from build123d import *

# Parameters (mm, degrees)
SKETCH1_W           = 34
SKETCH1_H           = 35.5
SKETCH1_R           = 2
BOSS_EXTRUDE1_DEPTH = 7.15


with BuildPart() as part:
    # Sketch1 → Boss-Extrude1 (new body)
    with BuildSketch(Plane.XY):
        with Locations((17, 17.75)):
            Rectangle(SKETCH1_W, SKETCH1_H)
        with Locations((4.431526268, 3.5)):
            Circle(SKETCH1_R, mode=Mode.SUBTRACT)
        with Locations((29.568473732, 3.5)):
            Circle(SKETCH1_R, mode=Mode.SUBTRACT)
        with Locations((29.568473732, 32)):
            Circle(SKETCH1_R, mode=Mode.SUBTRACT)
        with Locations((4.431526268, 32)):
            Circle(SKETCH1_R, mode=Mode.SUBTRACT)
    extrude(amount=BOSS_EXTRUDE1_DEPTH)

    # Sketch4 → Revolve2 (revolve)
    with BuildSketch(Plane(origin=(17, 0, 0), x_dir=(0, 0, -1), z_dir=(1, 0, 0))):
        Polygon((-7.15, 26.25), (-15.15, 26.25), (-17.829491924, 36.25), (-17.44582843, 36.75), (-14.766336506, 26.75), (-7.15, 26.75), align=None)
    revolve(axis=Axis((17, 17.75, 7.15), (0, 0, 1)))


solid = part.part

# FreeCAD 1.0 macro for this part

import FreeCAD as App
import Part
import Sketcher
from FreeCAD import Vector
Q = App.Units.Quantity


def add_polygon(sketch, points):
    """Adds a closed chain of lines whose ends are joined by coincident constraints."""
    first, n = sketch.GeometryCount, len(points)
    for a, b in zip(points, points[1:] + points[:1]):
        sketch.addGeometry(Part.LineSegment(App.Vector(*a, 0), App.Vector(*b, 0)), False)
    for i in range(n):
        sketch.addConstraint(Sketcher.Constraint("Coincident", first + i, 2, first + (i + 1) % n, 1))

doc = App.newDocument("Part")
body = doc.addObject("PartDesign::Body", "Body")

# Sketch on XY plane
sketch1 = body.newObject("Sketcher::SketchObject", "Sketch")
sketch1.AttachmentSupport = (doc.getObject("XY_Plane"), [""])
sketch1.MapMode = "FlatFace"
add_polygon(sketch1, [(0, 35.5), (0, 0), (34, 0), (34, 35.5)])  # lines 0-3
sketch1.addGeometry(Part.Circle(Vector(4.4, 3.5, 0), Vector(0, 0, 1), 2), False)  # 4
sketch1.addGeometry(Part.Circle(Vector(29.6, 3.5, 0), Vector(0, 0, 1), 2), False)  # 5
sketch1.addGeometry(Part.Circle(Vector(4.4, 32, 0), Vector(0, 0, 1), 2), False)  # 6
sketch1.addGeometry(Part.Circle(Vector(29.6, 32, 0), Vector(0, 0, 1), 2), False)  # 7
sketch1.addConstraint(Sketcher.Constraint("Vertical", 0))
sketch1.addConstraint(Sketcher.Constraint("Horizontal", 1))
sketch1.addConstraint(Sketcher.Constraint("Vertical", 2))
sketch1.addConstraint(Sketcher.Constraint("Horizontal", 3))
sketch1.addConstraint(Sketcher.Constraint("Coincident", 0, 2, -1, 1))
sketch1.addConstraint(Sketcher.Constraint("Equal", 4, 5))
sketch1.addConstraint(Sketcher.Constraint("Equal", 5, 6))
sketch1.addConstraint(Sketcher.Constraint("Equal", 6, 7))
sketch1.addConstraint(Sketcher.Constraint("Horizontal", 4, 3, 5, 3))
sketch1.addConstraint(Sketcher.Constraint("Horizontal", 6, 3, 7, 3))
sketch1.addConstraint(Sketcher.Constraint("Vertical", 4, 3, 6, 3))
sketch1.addConstraint(Sketcher.Constraint("Vertical", 5, 3, 7, 3))
sketch1.addConstraint(Sketcher.Constraint("Diameter", 4, Q("4 mm")))
sketch1.addConstraint(Sketcher.Constraint("DistanceX", 1, 1, 1, 2, Q("34 mm")))
sketch1.addConstraint(Sketcher.Constraint("DistanceY", 0, 2, 0, 1, Q("35.5 mm")))
sketch1.addConstraint(Sketcher.Constraint("DistanceY", -1, 1, 6, 3, Q("32 mm")))
sketch1.addConstraint(Sketcher.Constraint("DistanceY", 5, 3, 2, 2, Q("32 mm")))
sketch1.addConstraint(Sketcher.Constraint("DistanceX", -1, 1, 4, 3, Q("4.431526 mm")))
sketch1.addConstraint(Sketcher.Constraint("DistanceX", -1, 1, 5, 3, Q("29.568474 mm")))
pad1 = body.newObject("PartDesign::Pad", "Pad")
pad1.Profile = sketch1
pad1.Length = 7.15

# Sketch on YZ plane
sketch2 = body.newObject("Sketcher::SketchObject", "Sketch001")
sketch2.AttachmentSupport = (doc.getObject("YZ_Plane"), [""])
sketch2.MapMode = "FlatFace"
sketch2.AttachmentOffset = App.Placement(Vector(0, 0, 17), App.Rotation())
add_polygon(sketch2, [(26.2, 15.2), (26.2, 7.2), (26.8, 7.2), (26.8, 14.8), (36.8, 17.4), (36.2, 17.8)])  # lines 0-5
sketch2.addGeometry(Part.LineSegment(Vector(17.8, 7.2, 0), Vector(17.8, 17.8, 0)), True)  # axis
sketch2.addConstraint(Sketcher.Constraint("Vertical", 0))
sketch2.addConstraint(Sketcher.Constraint("Horizontal", 1))
sketch2.addConstraint(Sketcher.Constraint("Vertical", 2))
sketch2.addConstraint(Sketcher.Constraint("Vertical", 6))
sketch2.addConstraint(Sketcher.Constraint("Parallel", 3, 5))
sketch2.addConstraint(Sketcher.Constraint("Horizontal", 1, 2, 6, 1))
sketch2.addConstraint(Sketcher.Constraint("Horizontal", 4, 2, 6, 2))
sketch2.addConstraint(Sketcher.Constraint("Equal", 3, 5))
sketch2.addConstraint(Sketcher.Constraint("DistanceY", 0, 2, 0, 1, Q("8 mm")))
sketch2.addConstraint(Sketcher.Constraint("Angle", 3, Q("15 deg")))
sketch2.addConstraint(Sketcher.Constraint("DistanceX", 1, 1, 1, 2, Q("0.5 mm")))
sketch2.addConstraint(Sketcher.Constraint("Angle", 4, Q("142.5 deg")))
sketch2.addConstraint(Sketcher.Constraint("DistanceX", 2, 2, 3, 2, Q("10 mm")))
sketch2.addConstraint(Sketcher.Constraint("DistanceX", 6, 1, 1, 2, Q("9 mm")))
sketch2.addConstraint(Sketcher.Constraint("DistanceX", -1, 1, 0, 2, Q("26.25 mm")))
sketch2.addConstraint(Sketcher.Constraint("DistanceY", -1, 1, 0, 2, Q("7.15 mm")))
revolution = body.newObject("PartDesign::Revolution", "Revolution")
revolution.Profile = sketch2
revolution.ReferenceAxis = (sketch2, ["Axis0"])
revolution.Angle = 360

doc.recompute()
